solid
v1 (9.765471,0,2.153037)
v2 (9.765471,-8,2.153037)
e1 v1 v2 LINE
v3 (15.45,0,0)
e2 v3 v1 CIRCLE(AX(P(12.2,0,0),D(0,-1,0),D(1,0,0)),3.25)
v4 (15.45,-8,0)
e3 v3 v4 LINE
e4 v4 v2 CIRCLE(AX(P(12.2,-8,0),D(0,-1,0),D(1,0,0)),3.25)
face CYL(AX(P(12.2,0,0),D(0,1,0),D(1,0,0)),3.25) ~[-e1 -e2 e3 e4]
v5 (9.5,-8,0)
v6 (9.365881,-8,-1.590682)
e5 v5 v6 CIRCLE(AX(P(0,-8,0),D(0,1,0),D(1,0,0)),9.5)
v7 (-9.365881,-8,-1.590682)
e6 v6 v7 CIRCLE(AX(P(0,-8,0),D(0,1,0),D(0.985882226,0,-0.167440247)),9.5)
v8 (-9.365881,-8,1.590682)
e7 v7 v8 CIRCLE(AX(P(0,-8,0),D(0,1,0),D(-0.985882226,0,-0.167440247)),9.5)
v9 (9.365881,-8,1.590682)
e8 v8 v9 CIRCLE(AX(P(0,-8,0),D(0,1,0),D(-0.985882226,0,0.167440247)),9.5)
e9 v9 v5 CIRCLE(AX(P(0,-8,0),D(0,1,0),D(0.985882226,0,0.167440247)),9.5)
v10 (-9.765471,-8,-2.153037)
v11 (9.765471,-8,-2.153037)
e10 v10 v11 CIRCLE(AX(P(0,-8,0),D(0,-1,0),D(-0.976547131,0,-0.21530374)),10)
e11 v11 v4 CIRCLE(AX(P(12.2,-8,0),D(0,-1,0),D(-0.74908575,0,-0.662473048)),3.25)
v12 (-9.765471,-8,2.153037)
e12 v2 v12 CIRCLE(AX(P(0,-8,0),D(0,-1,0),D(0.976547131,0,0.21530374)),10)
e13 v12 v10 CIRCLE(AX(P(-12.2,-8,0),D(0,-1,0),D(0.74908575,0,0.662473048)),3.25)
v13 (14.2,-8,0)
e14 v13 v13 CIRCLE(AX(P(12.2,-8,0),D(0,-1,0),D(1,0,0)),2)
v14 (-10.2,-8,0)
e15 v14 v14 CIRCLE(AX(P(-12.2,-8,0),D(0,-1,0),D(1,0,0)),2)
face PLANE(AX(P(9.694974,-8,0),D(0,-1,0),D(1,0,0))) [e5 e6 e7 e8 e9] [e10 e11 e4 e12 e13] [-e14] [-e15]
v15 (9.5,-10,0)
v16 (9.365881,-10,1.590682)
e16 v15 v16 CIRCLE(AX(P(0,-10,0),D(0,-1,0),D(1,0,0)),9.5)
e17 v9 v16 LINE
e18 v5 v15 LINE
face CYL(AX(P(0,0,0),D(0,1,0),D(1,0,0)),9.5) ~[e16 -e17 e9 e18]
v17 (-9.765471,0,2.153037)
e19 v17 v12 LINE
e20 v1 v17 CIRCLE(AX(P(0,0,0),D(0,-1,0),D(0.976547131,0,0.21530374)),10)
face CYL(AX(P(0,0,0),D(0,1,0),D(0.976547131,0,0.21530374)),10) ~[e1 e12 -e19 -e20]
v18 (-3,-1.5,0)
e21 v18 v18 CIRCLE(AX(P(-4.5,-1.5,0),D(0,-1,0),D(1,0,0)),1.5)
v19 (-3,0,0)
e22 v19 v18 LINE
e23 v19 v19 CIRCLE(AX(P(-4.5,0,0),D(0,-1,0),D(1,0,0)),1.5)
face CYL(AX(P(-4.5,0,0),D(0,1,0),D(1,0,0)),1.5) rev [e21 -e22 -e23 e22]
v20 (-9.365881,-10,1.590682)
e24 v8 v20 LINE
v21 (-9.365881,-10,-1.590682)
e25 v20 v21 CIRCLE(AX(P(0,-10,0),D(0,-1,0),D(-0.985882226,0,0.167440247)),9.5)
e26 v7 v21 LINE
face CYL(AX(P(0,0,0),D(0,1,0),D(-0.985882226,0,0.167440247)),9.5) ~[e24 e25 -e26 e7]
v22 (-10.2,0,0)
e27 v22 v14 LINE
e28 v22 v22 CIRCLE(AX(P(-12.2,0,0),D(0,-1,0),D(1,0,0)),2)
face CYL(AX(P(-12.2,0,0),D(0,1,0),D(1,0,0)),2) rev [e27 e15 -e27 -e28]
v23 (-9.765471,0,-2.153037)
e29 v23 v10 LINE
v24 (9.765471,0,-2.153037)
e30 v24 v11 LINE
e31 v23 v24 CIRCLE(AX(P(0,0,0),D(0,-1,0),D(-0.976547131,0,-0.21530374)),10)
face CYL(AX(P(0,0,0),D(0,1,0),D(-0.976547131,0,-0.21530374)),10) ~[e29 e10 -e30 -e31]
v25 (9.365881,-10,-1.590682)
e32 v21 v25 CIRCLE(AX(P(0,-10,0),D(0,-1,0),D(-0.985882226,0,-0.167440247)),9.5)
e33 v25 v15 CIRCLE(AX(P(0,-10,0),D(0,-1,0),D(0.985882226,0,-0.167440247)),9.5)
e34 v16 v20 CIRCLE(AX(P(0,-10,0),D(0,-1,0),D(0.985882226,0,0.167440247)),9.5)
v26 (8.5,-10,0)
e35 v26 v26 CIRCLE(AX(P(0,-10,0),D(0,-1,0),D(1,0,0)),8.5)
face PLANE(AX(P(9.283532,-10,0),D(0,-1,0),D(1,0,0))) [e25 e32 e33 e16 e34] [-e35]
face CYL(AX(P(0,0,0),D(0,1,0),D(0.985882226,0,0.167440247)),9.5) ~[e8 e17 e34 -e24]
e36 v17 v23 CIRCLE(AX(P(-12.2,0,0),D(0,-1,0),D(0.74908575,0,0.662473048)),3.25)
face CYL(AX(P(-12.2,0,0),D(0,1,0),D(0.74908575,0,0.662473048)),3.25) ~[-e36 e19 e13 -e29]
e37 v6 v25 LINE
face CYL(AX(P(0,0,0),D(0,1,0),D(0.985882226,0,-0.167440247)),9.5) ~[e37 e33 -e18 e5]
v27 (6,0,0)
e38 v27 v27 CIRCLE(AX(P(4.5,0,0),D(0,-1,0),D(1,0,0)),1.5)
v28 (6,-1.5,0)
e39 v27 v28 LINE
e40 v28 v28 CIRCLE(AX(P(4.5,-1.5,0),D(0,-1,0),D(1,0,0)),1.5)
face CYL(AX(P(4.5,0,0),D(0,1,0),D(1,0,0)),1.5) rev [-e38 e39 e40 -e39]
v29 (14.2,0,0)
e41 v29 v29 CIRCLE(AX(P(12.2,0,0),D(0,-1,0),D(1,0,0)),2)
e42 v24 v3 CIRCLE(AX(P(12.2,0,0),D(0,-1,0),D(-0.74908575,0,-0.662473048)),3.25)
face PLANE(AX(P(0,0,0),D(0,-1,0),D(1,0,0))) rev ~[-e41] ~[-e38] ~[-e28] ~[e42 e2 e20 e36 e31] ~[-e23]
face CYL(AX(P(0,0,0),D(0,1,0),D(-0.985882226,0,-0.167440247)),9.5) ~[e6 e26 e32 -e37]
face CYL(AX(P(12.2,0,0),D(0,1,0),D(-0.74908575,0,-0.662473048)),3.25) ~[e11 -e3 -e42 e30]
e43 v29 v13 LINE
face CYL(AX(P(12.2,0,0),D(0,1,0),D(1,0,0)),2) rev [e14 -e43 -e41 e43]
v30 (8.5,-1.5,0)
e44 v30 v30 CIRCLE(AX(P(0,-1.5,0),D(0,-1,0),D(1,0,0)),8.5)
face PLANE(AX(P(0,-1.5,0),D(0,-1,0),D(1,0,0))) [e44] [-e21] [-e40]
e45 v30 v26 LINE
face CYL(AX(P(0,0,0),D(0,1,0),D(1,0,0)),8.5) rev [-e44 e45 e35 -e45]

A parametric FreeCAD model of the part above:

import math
import FreeCAD as App
import Part
import Sketcher
from FreeCAD import Vector

doc = App.newDocument("Part")
params = doc.addObject("Spreadsheet::Sheet", "Params")
for row, (alias, value) in enumerate([
    ("sketch1_diameter", "17 mm"),
    ("sketch1_radius", "9.5 mm"),
    ("sketch1_radius2", "3.25 mm"),
    ("pad1_length", "10 mm"),
    ("sketch2_diameter", "4 mm"),
    ("sketch2_radius", "10 mm"),
    ("sketch2_radius2", "9.5 mm"),
    ("sketch2_radius3", "3.25 mm"),
    ("pad2_length", "8 mm"),
    ("sketch3_diameter", "17 mm"),
    ("sketch3_diameter2", "3 mm"),
    ("pad3_length", "1.5 mm"),
    ("sketch4_radius", "9.5 mm"),
    ("sketch4_radius2", "3.25 mm"),
    ("pad4_length", "10 mm"),
], start=1):
    params.set(f"A{row}", alias)
    params.set(f"B{row}", "=" + value)
    params.setAlias(f"B{row}", alias)

body = doc.addObject("PartDesign::Body", "Body")

# Sketch on XZ plane
sketch1 = body.newObject("Sketcher::SketchObject", "Sketch")
sketch1.AttachmentSupport = (doc.getObject("XZ_Plane"), [""])
sketch1.MapMode = "FlatFace"
sketch1.addGeometry([
    Part.ArcOfCircle(Part.Circle(Vector(12.2, 0, 0), Vector(0, 0, 1), 3.2), math.radians(151), math.radians(209)),  # 0
    Part.ArcOfCircle(Part.Circle(Vector(0, 0, 0), Vector(0, 0, 1), 9.5), math.radians(10), math.radians(170)),  # 1
    Part.ArcOfCircle(Part.Circle(Vector(-12.2, 0, 0), Vector(0, 0, 1), 3.3), math.radians(0), math.radians(29)),  # 2
    Part.ArcOfCircle(Part.Circle(Vector(-12.2, 0, 0), Vector(0, 0, 1), 3.3), math.radians(-29), math.radians(0)),  # 3
    Part.ArcOfCircle(Part.Circle(Vector(0, 0, 0), Vector(0, 0, 1), 9.5), math.radians(-170), math.radians(-10)),  # 4
    Part.Circle(Vector(0, 0, 0), Vector(0, 0, 1), 8.5),  # 5
], False)
sketch1.addConstraint([
    Sketcher.Constraint("Coincident", 0, 1, 1, 1),
    Sketcher.Constraint("Coincident", 1, 2, 2, 2),
    Sketcher.Constraint("Tangent", 2, 1, 3, 2),
    Sketcher.Constraint("Coincident", 3, 1, 4, 1),
    Sketcher.Constraint("Coincident", 4, 2, 0, 2),
    Sketcher.Constraint("Coincident", 1, 3, -1, 1),
    Sketcher.Constraint("Coincident", 4, 3, -1, 1),
    Sketcher.Constraint("Coincident", 5, 3, -1, 1),
    Sketcher.Constraint("Equal", 0, 2),
    Sketcher.Constraint("Equal", 2, 3),
    Sketcher.Constraint("Equal", 1, 4),
    Sketcher.Constraint("Symmetric", 0, 3, 2, 3, -1, 1),
    Sketcher.Constraint("PointOnObject", 0, 3, -1),
    Sketcher.Constraint("PointOnObject", 2, 1, -1),
    Sketcher.Constraint("Diameter", 5, 17.0),
    Sketcher.Constraint("Radius", 1, 9.5),
    Sketcher.Constraint("Radius", 0, 3.25),
    Sketcher.Constraint("DistanceX", -1, 1, 0, 3, 12.2),
])
sketch1.setExpression("Constraints[14]", "Params.sketch1_diameter")
sketch1.setExpression("Constraints[15]", "Params.sketch1_radius")
sketch1.setExpression("Constraints[16]", "Params.sketch1_radius2")
pad1 = body.newObject("PartDesign::Pad", "Pad")
pad1.Profile = sketch1
pad1.setExpression("Length", "Params.pad1_length")

# Sketch on XZ plane
sketch2 = body.newObject("Sketcher::SketchObject", "Sketch001")
sketch2.AttachmentSupport = (doc.getObject("XZ_Plane"), [""])
sketch2.MapMode = "FlatFace"
sketch2.addGeometry([
    Part.ArcOfCircle(Part.Circle(Vector(12.2, 0, 0), Vector(0, 0, 1), 3.2), math.radians(0), math.radians(139)),  # 0
    Part.ArcOfCircle(Part.Circle(Vector(0, 0, 0), Vector(0, 0, 1), 10), math.radians(12), math.radians(168)),  # 1
    Part.ArcOfCircle(Part.Circle(Vector(-12.2, 0, 0), Vector(0, 0, 1), 3.2), math.radians(41), math.radians(319)),  # 2
    Part.ArcOfCircle(Part.Circle(Vector(0, 0, 0), Vector(0, 0, 1), 10), math.radians(-168), math.radians(-12)),  # 3
    Part.ArcOfCircle(Part.Circle(Vector(12.2, 0, 0), Vector(0, 0, 1), 3.2), math.radians(-139), math.radians(0)),  # 4
    Part.Circle(Vector(-12.2, 0, 0), Vector(0, 0, 1), 2),  # 5
    Part.ArcOfCircle(Part.Circle(Vector(0, 0, 0), Vector(0, 0, 1), 9.5), math.radians(10), math.radians(170)),  # 6
    Part.ArcOfCircle(Part.Circle(Vector(0, 0, 0), Vector(0, 0, 1), 9.5), math.radians(0), math.radians(9.64)),  # 7
    Part.ArcOfCircle(Part.Circle(Vector(0, 0, 0), Vector(0, 0, 1), 9.5), math.radians(-9.64), math.radians(0)),  # 8
    Part.ArcOfCircle(Part.Circle(Vector(0, 0, 0), Vector(0, 0, 1), 9.5), math.radians(-170), math.radians(-10)),  # 9
    Part.ArcOfCircle(Part.Circle(Vector(0, 0, 0), Vector(0, 0, 1), 9.5), math.radians(170.36), math.radians(189.64)),  # 10
    Part.Circle(Vector(12.2, 0, 0), Vector(0, 0, 1), 2),  # 11
], False)
sketch2.addConstraint([
    Sketcher.Constraint("Coincident", 0, 2, 1, 1),
    Sketcher.Constraint("Coincident", 1, 2, 2, 1),
    Sketcher.Constraint("Coincident", 2, 2, 3, 1),
    Sketcher.Constraint("Coincident", 3, 2, 4, 1),
    Sketcher.Constraint("Tangent", 4, 2, 0, 1),
    Sketcher.Constraint("Tangent", 6, 1, 7, 2),
    Sketcher.Constraint("Tangent", 7, 1, 8, 2),
    Sketcher.Constraint("Tangent", 8, 1, 9, 2),
    Sketcher.Constraint("Tangent", 9, 1, 10, 2),
    Sketcher.Constraint("Tangent", 10, 1, 6, 2),
    Sketcher.Constraint("Coincident", 1, 3, -1, 1),
    Sketcher.Constraint("Coincident", 3, 3, -1, 1),
    Sketcher.Constraint("Coincident", 6, 3, -1, 1),
    Sketcher.Constraint("Coincident", 8, 3, -1, 1),
    Sketcher.Constraint("Coincident", 5, 3, 2, 3),
    Sketcher.Constraint("Coincident", 11, 3, 0, 3),
    Sketcher.Constraint("Equal", 0, 2),
    Sketcher.Constraint("Equal", 1, 3),
    Sketcher.Constraint("Equal", 2, 4),
    Sketcher.Constraint("Equal", 5, 11),
    Sketcher.Constraint("Symmetric", 0, 3, 2, 3, -1, 1),
    Sketcher.Constraint("PointOnObject", 0, 3, -1),
    Sketcher.Constraint("PointOnObject", 4, 2, -1),
    Sketcher.Constraint("PointOnObject", 7, 1, -1),
    Sketcher.Constraint("Horizontal", 8, 1, 9, 1),
    Sketcher.Constraint("Horizontal", 6, 1, 10, 1),
    Sketcher.Constraint("Vertical", 6, 1, 8, 1),
    Sketcher.Constraint("Diameter", 5, 4.0),
    Sketcher.Constraint("Radius", 1, 10.0),
    Sketcher.Constraint("Radius", 6, 9.5),
    Sketcher.Constraint("Radius", 0, 3.25),
    Sketcher.Constraint("DistanceX", -1, 1, 0, 3, 12.2),
    Sketcher.Constraint("DistanceX", -1, 1, 6, 1, 9.365881),
])
sketch2.setExpression("Constraints[27]", "Params.sketch2_diameter")
sketch2.setExpression("Constraints[28]", "Params.sketch2_radius")
sketch2.setExpression("Constraints[29]", "Params.sketch2_radius2")
sketch2.setExpression("Constraints[30]", "Params.sketch2_radius3")
pad2 = body.newObject("PartDesign::Pad", "Pad001")
pad2.Profile = sketch2
pad2.setExpression("Length", "Params.pad2_length")

# Sketch on XZ plane
sketch3 = body.newObject("Sketcher::SketchObject", "Sketch002")
sketch3.AttachmentSupport = (doc.getObject("XZ_Plane"), [""])
sketch3.MapMode = "FlatFace"
sketch3.addGeometry([
    Part.Circle(Vector(0, 0, 0), Vector(0, 0, 1), 8.5),
    Part.Circle(Vector(-4.5, 0, 0), Vector(0, 0, 1), 1.5),
    Part.Circle(Vector(4.5, 0, 0), Vector(0, 0, 1), 1.5),
], False)
sketch3.addConstraint([
    Sketcher.Constraint("Coincident", 0, 3, -1, 1),
    Sketcher.Constraint("Equal", 1, 2),
    Sketcher.Constraint("Symmetric", 1, 3, 2, 3, -1, 1),
    Sketcher.Constraint("PointOnObject", 1, 3, -1),
    Sketcher.Constraint("Diameter", 0, 17.0),
    Sketcher.Constraint("Diameter", 1, 3.0),
    Sketcher.Constraint("DistanceX", 1, 3, 2, 3, 9.0),
])
sketch3.setExpression("Constraints[4]", "Params.sketch3_diameter")
sketch3.setExpression("Constraints[5]", "Params.sketch3_diameter2")
pad3 = body.newObject("PartDesign::Pad", "Pad002")
pad3.Profile = sketch3
pad3.setExpression("Length", "Params.pad3_length")

# Sketch on XZ plane
sketch4 = body.newObject("Sketcher::SketchObject", "Sketch003")
sketch4.AttachmentSupport = (doc.getObject("XZ_Plane"), [""])
sketch4.MapMode = "FlatFace"
sketch4.addGeometry([
    Part.ArcOfCircle(Part.Circle(Vector(0, 0, 0), Vector(0, 0, 1), 9.5), math.radians(0), math.radians(9.64)),  # 0
    Part.ArcOfCircle(Part.Circle(Vector(12.2, 0, 0), Vector(0, 0, 1), 3.2), math.radians(151), math.radians(209)),  # 1
    Part.ArcOfCircle(Part.Circle(Vector(0, 0, 0), Vector(0, 0, 1), 9.5), math.radians(-9.64), math.radians(0)),  # 2
    Part.ArcOfCircle(Part.Circle(Vector(-12.2, 0, 0), Vector(0, 0, 1), 3.3), math.radians(0), math.radians(29)),  # 3
    Part.ArcOfCircle(Part.Circle(Vector(0, 0, 0), Vector(0, 0, 1), 9.5), math.radians(170.36), math.radians(189.64)),  # 4
    Part.ArcOfCircle(Part.Circle(Vector(-12.2, 0, 0), Vector(0, 0, 1), 3.3), math.radians(-29), math.radians(0)),  # 5
], False)
sketch4.addConstraint([
    Sketcher.Constraint("Coincident", 0, 2, 1, 1),
    Sketcher.Constraint("Coincident", 1, 2, 2, 1),
    Sketcher.Constraint("Tangent", 2, 2, 0, 1),
    Sketcher.Constraint("Coincident", 3, 2, 4, 1),
    Sketcher.Constraint("Coincident", 4, 2, 5, 1),
    Sketcher.Constraint("Tangent", 5, 2, 3, 1),
    Sketcher.Constraint("Coincident", 0, 3, -1, 1),
    Sketcher.Constraint("Coincident", 4, 3, -1, 1),
    Sketcher.Constraint("Equal", 0, 2),
    Sketcher.Constraint("Equal", 1, 3),
    Sketcher.Constraint("Equal", 2, 4),
    Sketcher.Constraint("Equal", 3, 5),
    Sketcher.Constraint("Symmetric", 1, 3, 3, 3, -1, 1),
    Sketcher.Constraint("PointOnObject", 1, 3, -1),
    Sketcher.Constraint("PointOnObject", 2, 2, -1),
    Sketcher.Constraint("PointOnObject", 5, 2, -1),
    Sketcher.Constraint("Radius", 0, 9.5),
    Sketcher.Constraint("Radius", 1, 3.25),
    Sketcher.Constraint("DistanceX", -1, 1, 1, 3, 12.2),
])
sketch4.setExpression("Constraints[16]", "Params.sketch4_radius")
sketch4.setExpression("Constraints[17]", "Params.sketch4_radius2")
pad4 = body.newObject("PartDesign::Pad", "Pad003")
pad4.Profile = sketch4
pad4.setExpression("Length", "Params.pad4_length")

doc.recompute()
